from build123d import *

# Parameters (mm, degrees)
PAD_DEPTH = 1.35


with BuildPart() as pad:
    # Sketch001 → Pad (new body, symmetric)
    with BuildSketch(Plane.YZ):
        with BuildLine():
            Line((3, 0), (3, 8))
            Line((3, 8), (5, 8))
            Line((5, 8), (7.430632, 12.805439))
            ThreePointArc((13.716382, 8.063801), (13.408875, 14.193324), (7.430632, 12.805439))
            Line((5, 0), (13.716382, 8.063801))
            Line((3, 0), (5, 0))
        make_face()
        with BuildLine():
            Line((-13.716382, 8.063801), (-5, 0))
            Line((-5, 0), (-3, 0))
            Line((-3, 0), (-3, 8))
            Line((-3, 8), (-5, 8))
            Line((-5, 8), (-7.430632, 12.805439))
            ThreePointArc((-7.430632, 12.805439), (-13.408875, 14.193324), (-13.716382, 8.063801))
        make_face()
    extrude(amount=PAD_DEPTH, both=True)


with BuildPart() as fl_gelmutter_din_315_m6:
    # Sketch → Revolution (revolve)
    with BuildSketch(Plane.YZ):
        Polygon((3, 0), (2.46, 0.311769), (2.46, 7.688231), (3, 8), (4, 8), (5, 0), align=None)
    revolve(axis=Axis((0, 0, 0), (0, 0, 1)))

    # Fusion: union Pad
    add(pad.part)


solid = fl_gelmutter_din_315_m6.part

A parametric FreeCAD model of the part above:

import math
import FreeCAD as App
import Part
import Sketcher

V = App.Vector
Q = App.Units.Quantity

doc = App.newDocument("Part")
body = doc.addObject("PartDesign::Body", "Body")
body.AllowCompound = True

# Sketch on YZ plane
sketch1 = doc.addObject("Sketcher::SketchObject", "Sketch")
body.addObject(sketch1)
sketch1.AttachmentSupport = (doc.YZ_Plane, [""])
sketch1.MapMode = "FlatFace"
sketch1.addGeometry([
    Part.LineSegment(V(3, 8, 0), V(3, 0, 0)),  # 0
    Part.LineSegment(V(3, 0, 0), V(5, 0, 0)),  # 1
    Part.LineSegment(V(5, 0, 0), V(13.716382, 8.063801, 0)),  # 2
    Part.ArcOfCircle(Part.Circle(V(11, 11, 0), V(0, 0, 1), 4), math.radians(-47.22699), math.radians(153.169041)),  # 3
    Part.LineSegment(V(7.430632, 12.805439, 0), V(5, 8, 0)),  # 4
    Part.LineSegment(V(5, 8, 0), V(3, 8, 0)),  # 5
    Part.LineSegment(V(-13.716382, 8.063801, 0), V(-5, 0, 0)),  # 6
    Part.LineSegment(V(-5, 0, 0), V(-3, 0, 0)),  # 7
    Part.LineSegment(V(-3, 0, 0), V(-3, 8, 0)),  # 8
    Part.LineSegment(V(-3, 8, 0), V(-5, 8, 0)),  # 9
    Part.LineSegment(V(-5, 8, 0), V(-7.430632, 12.805439, 0)),  # 10
    Part.ArcOfCircle(Part.Circle(V(-11, 11, 0), V(0, 0, 1), 4), math.radians(26.830959), math.radians(227.22699)),  # 11
], False)
sketch1.addConstraint([
    Sketcher.Constraint("Coincident", 0, 2, 1, 1),
    Sketcher.Constraint("Coincident", 1, 2, 2, 1),
    Sketcher.Constraint("Coincident", 2, 2, 3, 1),
    Sketcher.Constraint("Coincident", 3, 2, 4, 1),
    Sketcher.Constraint("Coincident", 4, 2, 5, 1),
    Sketcher.Constraint("Coincident", 5, 2, 0, 1),
    Sketcher.Constraint("Coincident", 6, 2, 7, 1),
    Sketcher.Constraint("Coincident", 7, 2, 8, 1),
    Sketcher.Constraint("Coincident", 8, 2, 9, 1),
    Sketcher.Constraint("Coincident", 9, 2, 10, 1),
    Sketcher.Constraint("Coincident", 10, 2, 11, 1),
    Sketcher.Constraint("Coincident", 11, 2, 6, 1),
    Sketcher.Constraint("Vertical", 0),
    Sketcher.Constraint("Horizontal", 1),
    Sketcher.Constraint("Horizontal", 5),
    Sketcher.Constraint("Horizontal", 7),
    Sketcher.Constraint("Vertical", 8),
    Sketcher.Constraint("Horizontal", 9),
    Sketcher.Constraint("Equal", 3, 11),
    Sketcher.Constraint("Symmetric", 1, 2, 6, 2, -1, 1),
    Sketcher.Constraint("Symmetric", 3, 3, 11, 3, -2),
    Sketcher.Constraint("Symmetric", 0, 2, 7, 2, -2),
    Sketcher.Constraint("Symmetric", 4, 2, 9, 2, -2),
    Sketcher.Constraint("Horizontal", 3, 2, 10, 2),
    Sketcher.Constraint("Horizontal", 2, 2, 11, 2),
    Sketcher.Constraint("Vertical", 1, 2, 4, 2),
    Sketcher.Constraint("Radius", 3, Q("4 mm")),
    Sketcher.Constraint("DistanceX", 1, 1, 1, 2, Q("2 mm")),
    Sketcher.Constraint("DistanceY", 0, 2, 0, 1, Q("8 mm")),
    Sketcher.Constraint("DistanceX", -1, 1, 3, 3, Q("11 mm")),
    Sketcher.Constraint("DistanceY", -1, 1, 3, 3, Q("11 mm")),
    Sketcher.Constraint("DistanceX", -1, 1, 0, 2, Q("3 mm")),
    Sketcher.Constraint("DistanceY", -1, 1, 2, 2, Q("8.063801 mm")),
    Sketcher.Constraint("DistanceX", -1, 1, 3, 2, Q("7.430632 mm")),
])
pad1 = doc.addObject("PartDesign::Pad", "Pad")
body.addObject(pad1)
pad1.Profile = sketch1
pad1.Length = 2.7
pad1.Midplane = True
body2 = doc.addObject("PartDesign::Body", "Body001")

# Sketch on YZ plane
sketch2 = doc.addObject("Sketcher::SketchObject", "Sketch001")
body2.addObject(sketch2)
sketch2.AttachmentSupport = (doc.getObject("YZ_Plane001"), [""])
sketch2.MapMode = "FlatFace"
sketch2.addGeometry([
    Part.LineSegment(V(2.46, 0.311769, 0), V(3, 0, 0)),  # 0
    Part.LineSegment(V(3, 0, 0), V(5, 0, 0)),  # 1
    Part.LineSegment(V(5, 0, 0), V(4, 8, 0)),  # 2
    Part.LineSegment(V(4, 8, 0), V(3, 8, 0)),  # 3
    Part.LineSegment(V(3, 8, 0), V(2.46, 7.688231, 0)),  # 4
    Part.LineSegment(V(2.46, 7.688231, 0), V(2.46, 0.311769, 0)),  # 5
], False)
sketch2.addConstraint([
    Sketcher.Constraint("Coincident", 0, 2, 1, 1),
    Sketcher.Constraint("Coincident", 1, 2, 2, 1),
    Sketcher.Constraint("Coincident", 2, 2, 3, 1),
    Sketcher.Constraint("Coincident", 3, 2, 4, 1),
    Sketcher.Constraint("Coincident", 4, 2, 5, 1),
    Sketcher.Constraint("Coincident", 5, 2, 0, 1),
    Sketcher.Constraint("Horizontal", 1),
    Sketcher.Constraint("Horizontal", 3),
    Sketcher.Constraint("Vertical", 5),
    Sketcher.Constraint("PointOnObject", 0, 2, -1),
    Sketcher.Constraint("Vertical", 0, 2, 3, 2),
    Sketcher.Constraint("Equal", 0, 4),
    Sketcher.Constraint("DistanceX", 1, 1, 1, 2, Q("2 mm")),
    Sketcher.Constraint("DistanceX", 3, 2, 3, 1, Q("1 mm")),
    Sketcher.Constraint("Angle", 0, Q("-29.999988 deg")),
    Sketcher.Constraint("DistanceX", -1, 1, 0, 2, Q("3 mm")),
    Sketcher.Constraint("DistanceY", -1, 1, 2, 2, Q("8 mm")),
    Sketcher.Constraint("DistanceX", -1, 1, 4, 2, Q("2.46 mm")),
])
revolution = doc.addObject("PartDesign::Revolution", "Revolution")
body2.addObject(revolution)
revolution.Profile = sketch2
revolution.ReferenceAxis = (sketch2, ["V_Axis"])
revolution.Angle = 360
doc.recompute()

boolean = doc.addObject("PartDesign::Boolean", "Boolean")
body2.addObject(boolean)
boolean.Type = "Fuse"
boolean.addObjects([body])

doc.recompute()
